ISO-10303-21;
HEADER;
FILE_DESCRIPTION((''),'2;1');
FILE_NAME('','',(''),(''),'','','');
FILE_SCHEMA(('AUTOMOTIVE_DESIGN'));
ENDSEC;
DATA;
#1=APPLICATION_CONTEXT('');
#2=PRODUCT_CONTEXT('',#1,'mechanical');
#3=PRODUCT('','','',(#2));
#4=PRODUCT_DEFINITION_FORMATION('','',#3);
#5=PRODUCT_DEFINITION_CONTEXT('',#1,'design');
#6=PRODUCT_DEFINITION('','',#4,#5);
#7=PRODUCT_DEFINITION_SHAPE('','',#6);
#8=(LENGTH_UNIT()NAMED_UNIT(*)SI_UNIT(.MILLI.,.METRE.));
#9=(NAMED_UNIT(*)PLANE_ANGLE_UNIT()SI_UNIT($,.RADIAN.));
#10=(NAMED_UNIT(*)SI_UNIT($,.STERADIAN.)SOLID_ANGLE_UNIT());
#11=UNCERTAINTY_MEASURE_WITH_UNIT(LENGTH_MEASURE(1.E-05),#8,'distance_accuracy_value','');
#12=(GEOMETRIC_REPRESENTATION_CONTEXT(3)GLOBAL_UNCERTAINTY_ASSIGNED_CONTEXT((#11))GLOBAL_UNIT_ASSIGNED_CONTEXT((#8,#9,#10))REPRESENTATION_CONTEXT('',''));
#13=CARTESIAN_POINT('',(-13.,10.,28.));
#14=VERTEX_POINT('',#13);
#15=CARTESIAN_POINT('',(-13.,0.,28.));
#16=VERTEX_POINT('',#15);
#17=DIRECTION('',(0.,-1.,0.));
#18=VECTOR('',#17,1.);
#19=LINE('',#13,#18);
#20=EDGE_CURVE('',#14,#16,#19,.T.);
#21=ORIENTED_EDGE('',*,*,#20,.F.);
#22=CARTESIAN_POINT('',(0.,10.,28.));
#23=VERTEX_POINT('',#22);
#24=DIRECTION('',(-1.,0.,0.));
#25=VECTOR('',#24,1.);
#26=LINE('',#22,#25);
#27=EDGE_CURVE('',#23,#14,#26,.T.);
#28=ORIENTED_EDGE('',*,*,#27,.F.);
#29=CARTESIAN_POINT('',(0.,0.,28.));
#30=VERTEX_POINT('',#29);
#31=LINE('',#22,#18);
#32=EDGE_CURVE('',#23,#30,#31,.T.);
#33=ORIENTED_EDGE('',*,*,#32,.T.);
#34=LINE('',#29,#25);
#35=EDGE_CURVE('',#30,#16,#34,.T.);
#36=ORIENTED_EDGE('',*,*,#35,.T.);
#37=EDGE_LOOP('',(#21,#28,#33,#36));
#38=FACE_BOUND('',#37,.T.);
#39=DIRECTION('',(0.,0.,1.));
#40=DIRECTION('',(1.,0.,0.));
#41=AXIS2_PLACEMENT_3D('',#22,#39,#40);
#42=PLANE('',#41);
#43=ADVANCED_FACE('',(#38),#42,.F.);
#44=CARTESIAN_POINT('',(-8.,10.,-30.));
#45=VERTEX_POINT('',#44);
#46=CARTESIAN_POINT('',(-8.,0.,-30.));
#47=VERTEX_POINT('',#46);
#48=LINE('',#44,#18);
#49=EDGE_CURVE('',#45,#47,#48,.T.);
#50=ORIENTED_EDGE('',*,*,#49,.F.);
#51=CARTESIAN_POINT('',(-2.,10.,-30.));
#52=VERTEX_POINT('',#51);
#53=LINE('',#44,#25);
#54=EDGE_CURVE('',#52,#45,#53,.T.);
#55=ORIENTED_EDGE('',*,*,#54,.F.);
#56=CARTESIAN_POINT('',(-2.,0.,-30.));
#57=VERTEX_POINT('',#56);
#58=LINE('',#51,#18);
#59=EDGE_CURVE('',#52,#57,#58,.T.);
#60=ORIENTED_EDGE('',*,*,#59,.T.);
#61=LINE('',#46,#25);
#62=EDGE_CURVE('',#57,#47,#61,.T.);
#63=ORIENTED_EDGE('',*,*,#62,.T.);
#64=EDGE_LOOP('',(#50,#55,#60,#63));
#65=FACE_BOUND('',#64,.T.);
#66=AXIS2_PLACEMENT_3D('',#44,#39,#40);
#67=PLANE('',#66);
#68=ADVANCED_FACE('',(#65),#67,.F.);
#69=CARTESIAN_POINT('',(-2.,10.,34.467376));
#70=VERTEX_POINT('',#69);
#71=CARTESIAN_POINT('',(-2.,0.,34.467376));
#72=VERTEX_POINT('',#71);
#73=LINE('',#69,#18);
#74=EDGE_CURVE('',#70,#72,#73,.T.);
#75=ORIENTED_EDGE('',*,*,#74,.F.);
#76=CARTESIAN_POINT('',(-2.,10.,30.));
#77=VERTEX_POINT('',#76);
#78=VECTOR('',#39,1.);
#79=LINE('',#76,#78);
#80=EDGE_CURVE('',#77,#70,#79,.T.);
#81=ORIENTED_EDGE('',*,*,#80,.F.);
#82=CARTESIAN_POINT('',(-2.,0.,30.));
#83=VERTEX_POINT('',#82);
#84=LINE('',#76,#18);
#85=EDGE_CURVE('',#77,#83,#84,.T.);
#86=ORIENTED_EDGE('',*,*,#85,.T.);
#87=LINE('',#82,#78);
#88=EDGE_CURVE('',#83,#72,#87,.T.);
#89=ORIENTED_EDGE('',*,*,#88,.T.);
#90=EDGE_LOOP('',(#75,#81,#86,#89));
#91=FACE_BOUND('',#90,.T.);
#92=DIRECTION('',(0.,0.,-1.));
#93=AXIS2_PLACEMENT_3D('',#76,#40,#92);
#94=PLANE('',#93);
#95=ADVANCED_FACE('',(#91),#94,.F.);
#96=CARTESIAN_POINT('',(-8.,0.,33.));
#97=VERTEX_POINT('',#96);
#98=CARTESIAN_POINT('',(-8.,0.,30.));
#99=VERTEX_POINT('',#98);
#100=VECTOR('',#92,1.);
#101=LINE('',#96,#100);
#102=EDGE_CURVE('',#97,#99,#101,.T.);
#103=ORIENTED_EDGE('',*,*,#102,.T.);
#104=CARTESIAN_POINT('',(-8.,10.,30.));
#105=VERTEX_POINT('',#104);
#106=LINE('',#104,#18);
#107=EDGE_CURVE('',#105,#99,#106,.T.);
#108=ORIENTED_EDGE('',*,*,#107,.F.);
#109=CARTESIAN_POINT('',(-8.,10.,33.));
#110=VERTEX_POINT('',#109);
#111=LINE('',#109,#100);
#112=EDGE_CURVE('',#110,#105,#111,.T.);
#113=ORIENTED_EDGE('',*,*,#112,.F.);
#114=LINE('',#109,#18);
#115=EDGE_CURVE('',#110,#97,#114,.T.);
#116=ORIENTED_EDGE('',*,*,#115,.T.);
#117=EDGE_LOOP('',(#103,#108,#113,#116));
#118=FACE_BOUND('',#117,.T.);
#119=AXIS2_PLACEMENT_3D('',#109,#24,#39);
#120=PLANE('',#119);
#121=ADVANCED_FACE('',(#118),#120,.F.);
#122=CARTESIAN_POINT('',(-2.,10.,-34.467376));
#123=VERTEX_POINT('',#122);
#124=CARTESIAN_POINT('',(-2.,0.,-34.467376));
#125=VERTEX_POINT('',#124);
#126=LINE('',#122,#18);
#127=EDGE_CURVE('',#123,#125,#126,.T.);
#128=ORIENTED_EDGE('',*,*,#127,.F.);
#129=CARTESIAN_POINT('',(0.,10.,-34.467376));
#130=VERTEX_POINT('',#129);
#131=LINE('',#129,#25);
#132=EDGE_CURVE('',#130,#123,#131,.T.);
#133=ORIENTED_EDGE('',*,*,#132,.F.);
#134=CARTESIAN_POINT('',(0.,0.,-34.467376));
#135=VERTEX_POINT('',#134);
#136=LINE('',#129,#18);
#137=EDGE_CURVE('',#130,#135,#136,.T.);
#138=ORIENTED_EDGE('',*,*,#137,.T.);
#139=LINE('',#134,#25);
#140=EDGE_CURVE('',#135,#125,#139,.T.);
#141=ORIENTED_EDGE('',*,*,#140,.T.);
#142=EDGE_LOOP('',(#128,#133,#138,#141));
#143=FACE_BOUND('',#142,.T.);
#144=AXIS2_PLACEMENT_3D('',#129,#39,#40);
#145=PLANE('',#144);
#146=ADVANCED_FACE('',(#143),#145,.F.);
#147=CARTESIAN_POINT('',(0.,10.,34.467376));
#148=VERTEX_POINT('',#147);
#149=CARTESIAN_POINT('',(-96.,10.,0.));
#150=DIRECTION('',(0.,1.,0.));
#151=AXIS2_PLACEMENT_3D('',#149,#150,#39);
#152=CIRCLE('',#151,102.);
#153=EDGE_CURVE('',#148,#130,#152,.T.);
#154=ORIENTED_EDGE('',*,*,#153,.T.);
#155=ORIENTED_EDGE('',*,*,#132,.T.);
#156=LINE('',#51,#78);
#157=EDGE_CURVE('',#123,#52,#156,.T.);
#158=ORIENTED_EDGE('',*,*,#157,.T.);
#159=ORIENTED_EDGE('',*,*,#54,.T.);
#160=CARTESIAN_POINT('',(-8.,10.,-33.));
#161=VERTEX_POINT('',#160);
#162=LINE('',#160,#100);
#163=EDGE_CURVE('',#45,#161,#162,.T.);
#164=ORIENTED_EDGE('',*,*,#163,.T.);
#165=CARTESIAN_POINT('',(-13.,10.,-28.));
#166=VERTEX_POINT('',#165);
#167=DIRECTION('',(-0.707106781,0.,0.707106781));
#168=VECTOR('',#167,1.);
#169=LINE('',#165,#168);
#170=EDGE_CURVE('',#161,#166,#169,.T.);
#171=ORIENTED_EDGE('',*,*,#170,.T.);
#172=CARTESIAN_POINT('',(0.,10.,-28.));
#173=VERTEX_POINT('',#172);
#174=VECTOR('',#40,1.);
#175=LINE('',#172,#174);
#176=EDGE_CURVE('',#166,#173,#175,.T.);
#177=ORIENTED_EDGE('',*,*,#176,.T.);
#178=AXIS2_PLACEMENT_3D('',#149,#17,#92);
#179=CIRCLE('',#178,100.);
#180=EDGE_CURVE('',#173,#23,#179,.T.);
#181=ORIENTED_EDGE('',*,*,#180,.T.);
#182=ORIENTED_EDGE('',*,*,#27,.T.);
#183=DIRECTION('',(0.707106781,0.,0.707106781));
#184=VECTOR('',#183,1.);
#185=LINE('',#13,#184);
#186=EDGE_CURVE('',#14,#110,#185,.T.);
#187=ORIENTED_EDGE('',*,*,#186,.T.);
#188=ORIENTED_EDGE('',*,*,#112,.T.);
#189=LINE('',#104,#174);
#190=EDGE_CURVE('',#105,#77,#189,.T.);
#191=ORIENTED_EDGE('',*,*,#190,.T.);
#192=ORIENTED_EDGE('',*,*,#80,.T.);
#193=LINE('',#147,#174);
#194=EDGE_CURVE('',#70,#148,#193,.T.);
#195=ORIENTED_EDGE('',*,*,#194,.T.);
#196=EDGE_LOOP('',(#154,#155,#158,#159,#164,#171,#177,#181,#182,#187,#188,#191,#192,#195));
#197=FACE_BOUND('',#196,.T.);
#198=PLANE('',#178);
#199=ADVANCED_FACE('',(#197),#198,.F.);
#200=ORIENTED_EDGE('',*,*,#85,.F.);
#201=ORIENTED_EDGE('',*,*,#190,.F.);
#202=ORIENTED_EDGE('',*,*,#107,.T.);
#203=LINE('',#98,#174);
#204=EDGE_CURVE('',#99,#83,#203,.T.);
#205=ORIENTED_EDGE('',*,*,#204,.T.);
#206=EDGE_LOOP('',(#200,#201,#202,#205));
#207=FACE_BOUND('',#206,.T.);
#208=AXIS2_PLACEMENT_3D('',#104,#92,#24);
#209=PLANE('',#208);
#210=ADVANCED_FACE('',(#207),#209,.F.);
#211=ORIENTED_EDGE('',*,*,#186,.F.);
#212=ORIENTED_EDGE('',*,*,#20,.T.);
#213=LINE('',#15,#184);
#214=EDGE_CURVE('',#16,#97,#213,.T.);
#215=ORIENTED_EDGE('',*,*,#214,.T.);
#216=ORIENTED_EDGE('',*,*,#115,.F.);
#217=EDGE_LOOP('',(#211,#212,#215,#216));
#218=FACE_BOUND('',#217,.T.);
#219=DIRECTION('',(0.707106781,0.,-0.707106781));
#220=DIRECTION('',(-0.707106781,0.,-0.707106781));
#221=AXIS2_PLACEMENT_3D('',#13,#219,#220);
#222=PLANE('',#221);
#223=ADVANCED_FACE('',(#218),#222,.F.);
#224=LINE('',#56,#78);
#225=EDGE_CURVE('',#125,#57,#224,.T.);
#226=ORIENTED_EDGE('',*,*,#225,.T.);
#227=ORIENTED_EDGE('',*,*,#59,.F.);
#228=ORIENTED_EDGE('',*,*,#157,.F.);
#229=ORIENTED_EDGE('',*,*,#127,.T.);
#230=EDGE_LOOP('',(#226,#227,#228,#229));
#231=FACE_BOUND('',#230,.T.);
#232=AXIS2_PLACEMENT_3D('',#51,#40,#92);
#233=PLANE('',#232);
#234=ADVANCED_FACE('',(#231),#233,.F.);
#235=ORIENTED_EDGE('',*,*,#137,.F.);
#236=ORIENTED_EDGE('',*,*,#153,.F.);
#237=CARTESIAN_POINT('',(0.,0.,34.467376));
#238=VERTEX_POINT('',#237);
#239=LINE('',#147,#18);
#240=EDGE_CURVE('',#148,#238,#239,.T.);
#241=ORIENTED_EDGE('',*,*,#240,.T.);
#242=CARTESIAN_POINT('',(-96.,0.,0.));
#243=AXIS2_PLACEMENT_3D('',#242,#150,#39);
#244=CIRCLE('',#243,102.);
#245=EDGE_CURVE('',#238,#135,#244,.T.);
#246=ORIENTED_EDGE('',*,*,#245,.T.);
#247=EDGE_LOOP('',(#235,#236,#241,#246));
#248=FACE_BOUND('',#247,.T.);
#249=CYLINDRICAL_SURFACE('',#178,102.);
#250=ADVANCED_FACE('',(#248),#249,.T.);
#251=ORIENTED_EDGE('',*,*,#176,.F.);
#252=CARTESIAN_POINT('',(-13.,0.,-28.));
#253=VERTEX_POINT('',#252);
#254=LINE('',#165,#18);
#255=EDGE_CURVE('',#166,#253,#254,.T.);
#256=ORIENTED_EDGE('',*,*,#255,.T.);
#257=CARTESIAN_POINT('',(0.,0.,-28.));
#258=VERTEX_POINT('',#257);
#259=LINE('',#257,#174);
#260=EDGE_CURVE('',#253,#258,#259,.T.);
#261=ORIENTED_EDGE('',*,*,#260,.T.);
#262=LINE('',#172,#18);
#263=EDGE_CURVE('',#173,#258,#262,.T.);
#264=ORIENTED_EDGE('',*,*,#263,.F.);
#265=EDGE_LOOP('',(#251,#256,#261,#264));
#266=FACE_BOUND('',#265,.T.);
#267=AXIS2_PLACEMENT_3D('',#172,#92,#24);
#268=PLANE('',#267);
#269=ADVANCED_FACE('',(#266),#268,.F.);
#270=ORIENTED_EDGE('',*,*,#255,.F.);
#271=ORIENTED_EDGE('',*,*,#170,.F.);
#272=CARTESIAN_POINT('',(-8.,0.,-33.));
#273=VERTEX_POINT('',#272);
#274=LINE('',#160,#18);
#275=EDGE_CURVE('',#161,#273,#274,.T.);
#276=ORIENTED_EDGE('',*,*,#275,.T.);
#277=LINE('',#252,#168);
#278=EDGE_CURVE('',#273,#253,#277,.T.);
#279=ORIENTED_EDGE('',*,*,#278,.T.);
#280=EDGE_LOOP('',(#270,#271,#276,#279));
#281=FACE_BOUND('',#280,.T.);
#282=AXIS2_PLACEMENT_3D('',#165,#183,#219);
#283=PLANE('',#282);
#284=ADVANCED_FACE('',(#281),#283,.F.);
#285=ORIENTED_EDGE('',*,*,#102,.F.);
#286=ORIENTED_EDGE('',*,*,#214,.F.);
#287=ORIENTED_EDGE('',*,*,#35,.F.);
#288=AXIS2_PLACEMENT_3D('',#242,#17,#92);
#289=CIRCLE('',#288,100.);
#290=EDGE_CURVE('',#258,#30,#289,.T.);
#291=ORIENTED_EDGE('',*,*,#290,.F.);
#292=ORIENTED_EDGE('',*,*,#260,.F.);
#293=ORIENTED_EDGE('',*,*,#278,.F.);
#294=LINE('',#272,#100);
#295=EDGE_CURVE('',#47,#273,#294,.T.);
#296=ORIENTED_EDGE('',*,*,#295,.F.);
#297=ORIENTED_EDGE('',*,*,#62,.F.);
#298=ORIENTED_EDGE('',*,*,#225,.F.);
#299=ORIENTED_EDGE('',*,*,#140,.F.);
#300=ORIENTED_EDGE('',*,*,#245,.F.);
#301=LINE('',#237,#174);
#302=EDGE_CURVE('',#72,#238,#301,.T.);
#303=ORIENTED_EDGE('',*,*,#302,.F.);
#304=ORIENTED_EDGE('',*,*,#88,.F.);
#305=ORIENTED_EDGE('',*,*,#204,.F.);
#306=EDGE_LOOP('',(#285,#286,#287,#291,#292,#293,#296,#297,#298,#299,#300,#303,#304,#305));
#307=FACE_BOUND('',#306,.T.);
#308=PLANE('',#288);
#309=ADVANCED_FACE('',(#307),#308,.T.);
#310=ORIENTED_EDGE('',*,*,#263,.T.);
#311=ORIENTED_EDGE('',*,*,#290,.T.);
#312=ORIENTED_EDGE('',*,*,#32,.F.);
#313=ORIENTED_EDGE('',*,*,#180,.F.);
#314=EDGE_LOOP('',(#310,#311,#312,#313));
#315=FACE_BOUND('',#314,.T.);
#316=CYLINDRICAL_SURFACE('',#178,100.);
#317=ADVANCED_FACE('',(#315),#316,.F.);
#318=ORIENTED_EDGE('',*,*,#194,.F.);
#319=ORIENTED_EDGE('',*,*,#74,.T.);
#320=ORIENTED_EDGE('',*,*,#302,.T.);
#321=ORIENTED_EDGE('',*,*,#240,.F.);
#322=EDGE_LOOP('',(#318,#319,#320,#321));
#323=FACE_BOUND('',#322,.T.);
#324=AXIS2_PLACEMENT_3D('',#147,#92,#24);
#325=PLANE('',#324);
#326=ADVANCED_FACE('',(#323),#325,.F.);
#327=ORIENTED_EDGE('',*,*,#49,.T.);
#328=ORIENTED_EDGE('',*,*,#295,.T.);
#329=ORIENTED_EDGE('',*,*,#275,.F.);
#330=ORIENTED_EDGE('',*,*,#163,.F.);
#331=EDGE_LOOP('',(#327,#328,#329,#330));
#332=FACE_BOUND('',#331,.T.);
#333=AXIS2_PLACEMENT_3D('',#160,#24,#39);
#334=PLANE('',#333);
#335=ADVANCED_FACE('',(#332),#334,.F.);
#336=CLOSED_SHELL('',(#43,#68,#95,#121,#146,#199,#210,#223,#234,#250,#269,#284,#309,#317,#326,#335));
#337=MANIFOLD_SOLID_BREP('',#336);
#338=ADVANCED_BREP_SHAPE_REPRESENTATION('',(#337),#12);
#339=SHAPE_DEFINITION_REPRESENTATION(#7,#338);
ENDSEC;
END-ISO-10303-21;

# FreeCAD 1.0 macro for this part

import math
import FreeCAD as App
import Part
import Sketcher
from FreeCAD import Vector

doc = App.newDocument("Part")
body = doc.addObject("PartDesign::Body", "Body")

# Sketch on XZ plane
sketch1 = body.newObject("Sketcher::SketchObject", "Sketch")
sketch1.AttachmentSupport = (doc.getObject("XZ_Plane"), [""])
sketch1.MapMode = "FlatFace"
sketch1.addGeometry([
    Part.LineSegment(Vector(0, 28, 0), Vector(-13, 28, 0)),  # 0
    Part.LineSegment(Vector(-13, 28, 0), Vector(-8, 33, 0)),  # 1
    Part.LineSegment(Vector(-8, 33, 0), Vector(-8, 30, 0)),  # 2
    Part.LineSegment(Vector(-8, 30, 0), Vector(-2, 30, 0)),  # 3
    Part.LineSegment(Vector(-2, 30, 0), Vector(-2, 34.5, 0)),  # 4
    Part.LineSegment(Vector(-2, 34.5, 0), Vector(0, 34.5, 0)),  # 5
    Part.ArcOfCircle(Part.Circle(Vector(-96, 0, 0), Vector(0, 0, 1), 102), math.radians(-20), math.radians(20)),  # 6
    Part.LineSegment(Vector(0, -34.5, 0), Vector(-2, -34.5, 0)),  # 7
    Part.LineSegment(Vector(-2, -34.5, 0), Vector(-2, -30, 0)),  # 8
    Part.LineSegment(Vector(-2, -30, 0), Vector(-8, -30, 0)),  # 9
    Part.LineSegment(Vector(-8, -30, 0), Vector(-8, -33, 0)),  # 10
    Part.LineSegment(Vector(-8, -33, 0), Vector(-13, -28, 0)),  # 11
    Part.LineSegment(Vector(-13, -28, 0), Vector(0, -28, 0)),  # 12
    Part.ArcOfCircle(Part.Circle(Vector(-96, 0, 0), Vector(0, 0, 1), 100), math.radians(-16), math.radians(16)),  # 13
], False)
sketch1.addConstraint([
    Sketcher.Constraint("Coincident", 0, 2, 1, 1),
    Sketcher.Constraint("Coincident", 1, 2, 2, 1),
    Sketcher.Constraint("Coincident", 2, 2, 3, 1),
    Sketcher.Constraint("Coincident", 3, 2, 4, 1),
    Sketcher.Constraint("Coincident", 4, 2, 5, 1),
    Sketcher.Constraint("Coincident", 5, 2, 6, 2),
    Sketcher.Constraint("Coincident", 6, 1, 7, 1),
    Sketcher.Constraint("Coincident", 7, 2, 8, 1),
    Sketcher.Constraint("Coincident", 8, 2, 9, 1),
    Sketcher.Constraint("Coincident", 9, 2, 10, 1),
    Sketcher.Constraint("Coincident", 10, 2, 11, 1),
    Sketcher.Constraint("Coincident", 11, 2, 12, 1),
    Sketcher.Constraint("Coincident", 12, 2, 13, 1),
    Sketcher.Constraint("Coincident", 13, 2, 0, 1),
    Sketcher.Constraint("Horizontal", 0),
    Sketcher.Constraint("Vertical", 2),
    Sketcher.Constraint("Horizontal", 3),
    Sketcher.Constraint("Vertical", 4),
    Sketcher.Constraint("Horizontal", 5),
    Sketcher.Constraint("Horizontal", 7),
    Sketcher.Constraint("Vertical", 8),
    Sketcher.Constraint("Horizontal", 9),
    Sketcher.Constraint("Vertical", 10),
    Sketcher.Constraint("Horizontal", 12),
    Sketcher.Constraint("Coincident", 13, 3, 6, 3),
    Sketcher.Constraint("Symmetric", 5, 2, 6, 1, -1, 1),
    Sketcher.Constraint("Symmetric", 12, 2, 13, 2, -1, 1),
    Sketcher.Constraint("Symmetric", 3, 2, 8, 2, -1),
    Sketcher.Constraint("Symmetric", 1, 2, 10, 2, -1),
    Sketcher.Constraint("PointOnObject", 6, 3, -1),
    Sketcher.Constraint("Perpendicular", 1, 11),
    Sketcher.Constraint("Vertical", 0, 2, 11, 2),
    Sketcher.Constraint("Radius", 6, 102.0),
    Sketcher.Constraint("Radius", 13, 100.0),
    Sketcher.Constraint("DistanceX", 0, 2, 0, 1, 13.0),
    Sketcher.Constraint("DistanceX", 3, 1, 3, 2, 6.0),
    Sketcher.Constraint("DistanceX", 5, 1, 5, 2, 2.0),
    Sketcher.Constraint("DistanceY", 2, 2, 2, 1, 3.0),
    Sketcher.Constraint("DistanceX", 6, 3, -1, 1, 96.0),
])
pad1 = body.newObject("PartDesign::Pad", "Pad")
pad1.Profile = sketch1
pad1.Length = 10
pad1.Reversed = True

doc.recompute()
